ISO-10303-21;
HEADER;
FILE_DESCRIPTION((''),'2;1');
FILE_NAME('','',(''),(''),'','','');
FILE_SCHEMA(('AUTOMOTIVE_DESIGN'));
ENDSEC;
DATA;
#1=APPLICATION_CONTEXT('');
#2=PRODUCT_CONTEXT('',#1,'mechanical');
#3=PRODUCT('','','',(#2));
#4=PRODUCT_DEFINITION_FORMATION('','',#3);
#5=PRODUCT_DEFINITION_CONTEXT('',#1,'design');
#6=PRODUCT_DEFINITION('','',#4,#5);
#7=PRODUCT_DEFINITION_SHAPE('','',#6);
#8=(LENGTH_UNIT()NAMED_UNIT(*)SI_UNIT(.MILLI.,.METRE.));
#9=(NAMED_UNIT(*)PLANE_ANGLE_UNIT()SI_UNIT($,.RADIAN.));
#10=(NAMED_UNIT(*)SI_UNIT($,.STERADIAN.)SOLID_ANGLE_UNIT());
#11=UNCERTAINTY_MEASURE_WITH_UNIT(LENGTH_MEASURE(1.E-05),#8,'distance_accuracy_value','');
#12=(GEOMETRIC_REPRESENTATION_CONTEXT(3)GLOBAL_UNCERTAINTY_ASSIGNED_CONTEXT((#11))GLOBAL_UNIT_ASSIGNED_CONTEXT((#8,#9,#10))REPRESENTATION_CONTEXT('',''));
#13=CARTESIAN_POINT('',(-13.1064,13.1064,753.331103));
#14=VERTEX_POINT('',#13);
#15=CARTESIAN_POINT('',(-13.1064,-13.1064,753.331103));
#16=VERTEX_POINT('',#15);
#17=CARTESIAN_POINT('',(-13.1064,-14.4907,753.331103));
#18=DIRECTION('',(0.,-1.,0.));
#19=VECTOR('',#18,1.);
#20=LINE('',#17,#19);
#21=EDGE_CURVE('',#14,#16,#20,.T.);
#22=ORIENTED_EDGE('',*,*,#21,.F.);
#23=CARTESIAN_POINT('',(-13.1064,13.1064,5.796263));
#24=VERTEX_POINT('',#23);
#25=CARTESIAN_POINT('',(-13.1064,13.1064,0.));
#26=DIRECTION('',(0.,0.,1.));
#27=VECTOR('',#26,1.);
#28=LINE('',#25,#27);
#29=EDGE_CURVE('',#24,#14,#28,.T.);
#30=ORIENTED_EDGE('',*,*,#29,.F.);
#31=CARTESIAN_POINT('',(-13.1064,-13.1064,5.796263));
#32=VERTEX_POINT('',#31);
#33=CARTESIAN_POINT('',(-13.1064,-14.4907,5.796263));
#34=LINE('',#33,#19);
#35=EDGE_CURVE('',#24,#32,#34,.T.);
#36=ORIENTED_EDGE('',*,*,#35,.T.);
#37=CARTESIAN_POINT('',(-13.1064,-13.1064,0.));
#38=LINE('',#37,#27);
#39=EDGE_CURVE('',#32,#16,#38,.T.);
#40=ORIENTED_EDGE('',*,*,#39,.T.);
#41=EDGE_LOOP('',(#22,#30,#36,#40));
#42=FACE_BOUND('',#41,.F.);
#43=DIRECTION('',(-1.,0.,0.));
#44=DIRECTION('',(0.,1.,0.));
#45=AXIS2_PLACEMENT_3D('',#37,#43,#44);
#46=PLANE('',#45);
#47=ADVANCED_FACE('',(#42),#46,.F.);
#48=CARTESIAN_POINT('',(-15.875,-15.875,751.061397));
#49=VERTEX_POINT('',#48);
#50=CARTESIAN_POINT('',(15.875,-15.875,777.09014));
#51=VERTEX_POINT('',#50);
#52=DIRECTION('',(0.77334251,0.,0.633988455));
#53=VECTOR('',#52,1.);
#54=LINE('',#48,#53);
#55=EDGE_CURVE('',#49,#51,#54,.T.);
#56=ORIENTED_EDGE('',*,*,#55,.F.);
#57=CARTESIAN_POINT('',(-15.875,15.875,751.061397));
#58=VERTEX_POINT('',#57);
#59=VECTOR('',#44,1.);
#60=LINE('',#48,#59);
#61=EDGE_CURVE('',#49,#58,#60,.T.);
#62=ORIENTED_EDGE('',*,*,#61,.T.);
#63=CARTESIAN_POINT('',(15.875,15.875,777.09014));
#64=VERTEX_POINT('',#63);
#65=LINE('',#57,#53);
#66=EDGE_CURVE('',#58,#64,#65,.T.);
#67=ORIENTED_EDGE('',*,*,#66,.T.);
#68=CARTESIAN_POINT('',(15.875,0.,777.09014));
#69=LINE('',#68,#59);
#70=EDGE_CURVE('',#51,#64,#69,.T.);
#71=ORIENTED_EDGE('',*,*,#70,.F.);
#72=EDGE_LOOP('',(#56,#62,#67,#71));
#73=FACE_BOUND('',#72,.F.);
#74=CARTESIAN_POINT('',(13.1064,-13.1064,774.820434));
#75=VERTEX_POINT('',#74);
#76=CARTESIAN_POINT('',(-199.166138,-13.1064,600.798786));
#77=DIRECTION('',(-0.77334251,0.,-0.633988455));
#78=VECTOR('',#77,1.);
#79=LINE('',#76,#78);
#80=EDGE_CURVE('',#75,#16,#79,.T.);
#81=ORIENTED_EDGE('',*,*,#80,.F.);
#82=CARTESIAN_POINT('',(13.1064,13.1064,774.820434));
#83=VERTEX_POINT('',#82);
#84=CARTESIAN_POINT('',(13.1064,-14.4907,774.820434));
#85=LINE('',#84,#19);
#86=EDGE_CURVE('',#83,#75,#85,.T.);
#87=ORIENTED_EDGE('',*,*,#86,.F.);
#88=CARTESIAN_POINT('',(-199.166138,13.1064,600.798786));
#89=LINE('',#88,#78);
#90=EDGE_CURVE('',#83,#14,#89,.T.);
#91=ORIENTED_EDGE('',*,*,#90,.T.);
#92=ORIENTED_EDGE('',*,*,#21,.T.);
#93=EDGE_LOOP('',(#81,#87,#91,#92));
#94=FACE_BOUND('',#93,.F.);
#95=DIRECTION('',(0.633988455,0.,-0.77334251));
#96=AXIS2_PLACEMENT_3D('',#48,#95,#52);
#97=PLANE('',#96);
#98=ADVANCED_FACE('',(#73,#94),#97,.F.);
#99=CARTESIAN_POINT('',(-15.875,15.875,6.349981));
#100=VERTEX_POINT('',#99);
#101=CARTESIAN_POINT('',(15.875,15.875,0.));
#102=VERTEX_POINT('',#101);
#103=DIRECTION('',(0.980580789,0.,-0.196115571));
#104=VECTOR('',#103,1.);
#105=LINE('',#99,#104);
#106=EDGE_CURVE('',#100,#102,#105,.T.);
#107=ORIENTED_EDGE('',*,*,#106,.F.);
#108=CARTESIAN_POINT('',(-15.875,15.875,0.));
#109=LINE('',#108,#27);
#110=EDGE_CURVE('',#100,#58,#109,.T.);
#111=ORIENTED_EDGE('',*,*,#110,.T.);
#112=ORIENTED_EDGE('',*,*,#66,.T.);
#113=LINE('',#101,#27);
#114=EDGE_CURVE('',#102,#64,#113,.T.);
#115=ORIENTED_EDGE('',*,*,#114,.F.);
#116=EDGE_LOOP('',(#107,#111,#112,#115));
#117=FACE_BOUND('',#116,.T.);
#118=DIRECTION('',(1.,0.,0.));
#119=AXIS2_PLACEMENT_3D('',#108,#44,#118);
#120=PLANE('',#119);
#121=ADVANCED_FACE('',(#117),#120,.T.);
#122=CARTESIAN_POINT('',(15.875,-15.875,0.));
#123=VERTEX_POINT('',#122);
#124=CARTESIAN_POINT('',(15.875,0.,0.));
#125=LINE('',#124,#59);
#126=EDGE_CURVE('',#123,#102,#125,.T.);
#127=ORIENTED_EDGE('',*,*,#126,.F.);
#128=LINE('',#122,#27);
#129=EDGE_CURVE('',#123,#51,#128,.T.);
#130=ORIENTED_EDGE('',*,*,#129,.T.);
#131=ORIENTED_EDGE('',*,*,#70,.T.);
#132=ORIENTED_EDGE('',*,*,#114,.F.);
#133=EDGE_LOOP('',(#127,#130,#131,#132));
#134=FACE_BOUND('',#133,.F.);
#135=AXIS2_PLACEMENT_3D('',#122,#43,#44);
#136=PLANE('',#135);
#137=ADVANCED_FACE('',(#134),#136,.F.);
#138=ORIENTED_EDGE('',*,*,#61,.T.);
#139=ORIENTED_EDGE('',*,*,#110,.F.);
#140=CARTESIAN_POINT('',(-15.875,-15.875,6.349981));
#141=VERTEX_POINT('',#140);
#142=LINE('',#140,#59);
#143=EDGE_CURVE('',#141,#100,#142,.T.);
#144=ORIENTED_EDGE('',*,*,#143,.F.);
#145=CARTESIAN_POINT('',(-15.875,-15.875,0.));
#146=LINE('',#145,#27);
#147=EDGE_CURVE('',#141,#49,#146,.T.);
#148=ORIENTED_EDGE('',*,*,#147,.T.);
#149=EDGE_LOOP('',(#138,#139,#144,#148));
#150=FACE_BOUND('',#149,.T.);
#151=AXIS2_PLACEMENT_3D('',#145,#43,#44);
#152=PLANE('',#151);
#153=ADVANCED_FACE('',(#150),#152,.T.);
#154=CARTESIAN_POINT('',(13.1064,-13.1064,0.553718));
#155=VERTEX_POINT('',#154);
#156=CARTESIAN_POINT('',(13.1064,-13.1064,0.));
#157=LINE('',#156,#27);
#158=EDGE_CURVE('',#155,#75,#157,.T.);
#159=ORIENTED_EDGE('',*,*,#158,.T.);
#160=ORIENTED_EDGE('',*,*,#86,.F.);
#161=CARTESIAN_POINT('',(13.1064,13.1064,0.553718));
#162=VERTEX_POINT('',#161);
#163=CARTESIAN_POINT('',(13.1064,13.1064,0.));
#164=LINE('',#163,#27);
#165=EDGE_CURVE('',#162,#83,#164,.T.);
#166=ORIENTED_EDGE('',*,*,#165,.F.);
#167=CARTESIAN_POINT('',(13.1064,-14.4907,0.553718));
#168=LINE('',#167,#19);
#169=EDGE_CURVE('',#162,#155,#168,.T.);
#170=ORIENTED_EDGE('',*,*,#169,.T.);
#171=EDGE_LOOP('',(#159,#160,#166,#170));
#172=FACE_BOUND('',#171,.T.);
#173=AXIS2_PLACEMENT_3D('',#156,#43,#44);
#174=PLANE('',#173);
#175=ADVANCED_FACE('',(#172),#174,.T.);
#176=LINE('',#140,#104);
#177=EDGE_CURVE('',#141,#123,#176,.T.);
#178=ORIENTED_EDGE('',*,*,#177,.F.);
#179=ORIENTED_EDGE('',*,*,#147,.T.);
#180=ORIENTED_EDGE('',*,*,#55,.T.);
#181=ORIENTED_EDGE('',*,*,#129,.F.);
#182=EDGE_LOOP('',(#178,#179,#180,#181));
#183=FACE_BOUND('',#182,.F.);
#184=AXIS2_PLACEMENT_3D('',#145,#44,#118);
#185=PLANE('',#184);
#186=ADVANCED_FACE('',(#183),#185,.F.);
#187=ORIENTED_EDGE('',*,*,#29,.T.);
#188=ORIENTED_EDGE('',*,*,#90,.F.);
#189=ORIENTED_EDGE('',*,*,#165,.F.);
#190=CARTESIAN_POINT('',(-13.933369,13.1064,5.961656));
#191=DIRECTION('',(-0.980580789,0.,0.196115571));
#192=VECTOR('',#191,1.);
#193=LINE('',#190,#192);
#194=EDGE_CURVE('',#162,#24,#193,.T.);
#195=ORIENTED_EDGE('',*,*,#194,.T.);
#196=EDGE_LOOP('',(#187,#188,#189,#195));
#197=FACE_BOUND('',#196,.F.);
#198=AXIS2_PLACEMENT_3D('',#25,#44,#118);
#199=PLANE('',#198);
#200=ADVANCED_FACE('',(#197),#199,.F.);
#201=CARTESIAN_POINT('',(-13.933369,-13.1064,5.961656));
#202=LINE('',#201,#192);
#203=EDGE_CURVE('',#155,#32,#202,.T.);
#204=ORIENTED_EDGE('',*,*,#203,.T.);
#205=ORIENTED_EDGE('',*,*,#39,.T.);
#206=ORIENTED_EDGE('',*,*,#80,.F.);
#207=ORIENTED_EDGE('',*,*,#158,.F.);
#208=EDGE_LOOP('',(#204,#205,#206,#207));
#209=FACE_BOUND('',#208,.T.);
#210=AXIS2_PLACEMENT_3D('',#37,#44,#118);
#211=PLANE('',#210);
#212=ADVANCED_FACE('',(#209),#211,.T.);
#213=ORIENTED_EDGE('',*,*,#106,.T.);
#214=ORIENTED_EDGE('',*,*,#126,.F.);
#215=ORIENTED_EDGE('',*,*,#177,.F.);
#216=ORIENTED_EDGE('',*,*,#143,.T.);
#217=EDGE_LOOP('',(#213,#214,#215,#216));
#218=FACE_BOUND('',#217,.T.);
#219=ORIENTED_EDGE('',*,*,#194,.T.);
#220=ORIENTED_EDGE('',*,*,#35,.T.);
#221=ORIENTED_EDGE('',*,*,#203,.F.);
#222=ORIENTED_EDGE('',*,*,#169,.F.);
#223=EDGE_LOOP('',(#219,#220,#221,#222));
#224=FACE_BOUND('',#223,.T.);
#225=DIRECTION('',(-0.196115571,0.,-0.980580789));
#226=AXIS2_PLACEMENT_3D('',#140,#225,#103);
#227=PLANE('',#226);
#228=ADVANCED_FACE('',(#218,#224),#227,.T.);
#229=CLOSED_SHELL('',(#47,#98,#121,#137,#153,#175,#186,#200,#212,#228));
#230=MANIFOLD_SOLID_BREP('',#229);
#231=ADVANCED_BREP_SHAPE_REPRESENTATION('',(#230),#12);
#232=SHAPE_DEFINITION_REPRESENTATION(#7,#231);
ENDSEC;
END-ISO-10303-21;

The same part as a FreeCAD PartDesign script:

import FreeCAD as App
import Part
import Sketcher
from FreeCAD import Vector
Q = App.Units.Quantity


def add_polygon(sketch, points):
    """Adds a closed chain of lines whose ends are joined by coincident constraints."""
    first, n = sketch.GeometryCount, len(points)
    for a, b in zip(points, points[1:] + points[:1]):
        sketch.addGeometry(Part.LineSegment(App.Vector(*a, 0), App.Vector(*b, 0)), False)
    for i in range(n):
        sketch.addConstraint(Sketcher.Constraint("Coincident", first + i, 2, first + (i + 1) % n, 1))

doc = App.newDocument("Part")
body = doc.addObject("PartDesign::Body", "Body")

sketch1 = body.newObject("Sketcher::SketchObject", "Sketch")
sketch1.AttachmentSupport = (doc.getObject("XY_Plane"), [""])
sketch1.MapMode = "FlatFace"
add_polygon(sketch1, [(-15.875, 15.875), (-15.875, -15.875), (15.875, -15.875), (15.875, 15.875)])
add_polygon(sketch1, [(13.1064, -13.1064), (-13.1064, -13.1064), (-13.1064, 13.1064), (13.1064, 13.1064)])
sketch1.addConstraint(Sketcher.Constraint("Vertical", 0))
sketch1.addConstraint(Sketcher.Constraint("Horizontal", 1))
sketch1.addConstraint(Sketcher.Constraint("Vertical", 2))
sketch1.addConstraint(Sketcher.Constraint("Horizontal", 3))
sketch1.addConstraint(Sketcher.Constraint("Horizontal", 4))
sketch1.addConstraint(Sketcher.Constraint("Vertical", 5))
sketch1.addConstraint(Sketcher.Constraint("Horizontal", 6))
sketch1.addConstraint(Sketcher.Constraint("Vertical", 7))
sketch1.addConstraint(Sketcher.Constraint("Symmetric", 0, 2, 2, 2, -1, 1))
sketch1.addConstraint(Sketcher.Constraint("Symmetric", 4, 2, 6, 2, -1, 1))
sketch1.addConstraint(Sketcher.Constraint("Equal", 3, 0))
sketch1.addConstraint(Sketcher.Constraint("Equal", 6, 5))
sketch1.addConstraint(Sketcher.Constraint("DistanceX", 1, 1, 1, 2, Q("1.25 in")))
sketch1.addConstraint(Sketcher.Constraint("DistanceX", 4, 2, 4, 1, Q("1.032 in")))
pad1 = body.newObject("PartDesign::Pad", "Pad")
pad1.Profile = sketch1
pad1.Length = Q("30.5941 in")

sketch2 = body.newObject("Sketcher::SketchObject", "Sketch001")
sketch2.AttachmentSupport = (doc.getObject("XZ_Plane"), [""])
sketch2.MapMode = "FlatFace"
sketch2.AttachmentOffset = App.Placement(Vector(0, 0, 0.625 * 25.4), App.Rotation())
add_polygon(sketch2, [(-15.875, 0), (15.875, 0), (-15.875, 6.349981)])
sketch2.addConstraint(Sketcher.Constraint("Horizontal", 0))
sketch2.addConstraint(Sketcher.Constraint("Vertical", 2))
sketch2.addConstraint(Sketcher.Constraint("Symmetric", 0, 2, 2, 2, -1, 1))
sketch2.addConstraint(Sketcher.Constraint("DistanceX", 0, 1, 0, 2, Q("1.25 in")))
sketch2.addConstraint(Sketcher.Constraint("DistanceY", 2, 2, 2, 1, 6.349981))
pocket1 = body.newObject("PartDesign::Pocket", "Pocket")
pocket1.Profile = sketch2
pocket1.Length = Q("1.25 in")

sketch3 = body.newObject("Sketcher::SketchObject", "Sketch002")
sketch3.AttachmentSupport = (doc.getObject("XZ_Plane"), [""])
sketch3.MapMode = "FlatFace"
sketch3.AttachmentOffset = App.Placement(Vector(0, 0, 0.625 * 25.4), App.Rotation())
add_polygon(sketch3, [(15.875, 777.09014), (-15.875, 777.09014), (-15.875, 751.061397)])
sketch3.addConstraint(Sketcher.Constraint("Horizontal", 0))
sketch3.addConstraint(Sketcher.Constraint("Vertical", 1))
sketch3.addConstraint(Sketcher.Constraint("DistanceX", 0, 2, 0, 1, Q("1.25 in")))
sketch3.addConstraint(Sketcher.Constraint("DistanceX", 0, 2, -1, 1, Q("0.625 in")))
sketch3.addConstraint(Sketcher.Constraint("DistanceY", -1, 1, 0, 2, Q("30.5941 in")))
sketch3.addConstraint(Sketcher.Constraint("DistanceY", 1, 2, 1, 1, 26.028743))
pocket2 = body.newObject("PartDesign::Pocket", "Pocket001")
pocket2.Profile = sketch3
pocket2.Length = Q("1.25 in")

doc.recompute()
